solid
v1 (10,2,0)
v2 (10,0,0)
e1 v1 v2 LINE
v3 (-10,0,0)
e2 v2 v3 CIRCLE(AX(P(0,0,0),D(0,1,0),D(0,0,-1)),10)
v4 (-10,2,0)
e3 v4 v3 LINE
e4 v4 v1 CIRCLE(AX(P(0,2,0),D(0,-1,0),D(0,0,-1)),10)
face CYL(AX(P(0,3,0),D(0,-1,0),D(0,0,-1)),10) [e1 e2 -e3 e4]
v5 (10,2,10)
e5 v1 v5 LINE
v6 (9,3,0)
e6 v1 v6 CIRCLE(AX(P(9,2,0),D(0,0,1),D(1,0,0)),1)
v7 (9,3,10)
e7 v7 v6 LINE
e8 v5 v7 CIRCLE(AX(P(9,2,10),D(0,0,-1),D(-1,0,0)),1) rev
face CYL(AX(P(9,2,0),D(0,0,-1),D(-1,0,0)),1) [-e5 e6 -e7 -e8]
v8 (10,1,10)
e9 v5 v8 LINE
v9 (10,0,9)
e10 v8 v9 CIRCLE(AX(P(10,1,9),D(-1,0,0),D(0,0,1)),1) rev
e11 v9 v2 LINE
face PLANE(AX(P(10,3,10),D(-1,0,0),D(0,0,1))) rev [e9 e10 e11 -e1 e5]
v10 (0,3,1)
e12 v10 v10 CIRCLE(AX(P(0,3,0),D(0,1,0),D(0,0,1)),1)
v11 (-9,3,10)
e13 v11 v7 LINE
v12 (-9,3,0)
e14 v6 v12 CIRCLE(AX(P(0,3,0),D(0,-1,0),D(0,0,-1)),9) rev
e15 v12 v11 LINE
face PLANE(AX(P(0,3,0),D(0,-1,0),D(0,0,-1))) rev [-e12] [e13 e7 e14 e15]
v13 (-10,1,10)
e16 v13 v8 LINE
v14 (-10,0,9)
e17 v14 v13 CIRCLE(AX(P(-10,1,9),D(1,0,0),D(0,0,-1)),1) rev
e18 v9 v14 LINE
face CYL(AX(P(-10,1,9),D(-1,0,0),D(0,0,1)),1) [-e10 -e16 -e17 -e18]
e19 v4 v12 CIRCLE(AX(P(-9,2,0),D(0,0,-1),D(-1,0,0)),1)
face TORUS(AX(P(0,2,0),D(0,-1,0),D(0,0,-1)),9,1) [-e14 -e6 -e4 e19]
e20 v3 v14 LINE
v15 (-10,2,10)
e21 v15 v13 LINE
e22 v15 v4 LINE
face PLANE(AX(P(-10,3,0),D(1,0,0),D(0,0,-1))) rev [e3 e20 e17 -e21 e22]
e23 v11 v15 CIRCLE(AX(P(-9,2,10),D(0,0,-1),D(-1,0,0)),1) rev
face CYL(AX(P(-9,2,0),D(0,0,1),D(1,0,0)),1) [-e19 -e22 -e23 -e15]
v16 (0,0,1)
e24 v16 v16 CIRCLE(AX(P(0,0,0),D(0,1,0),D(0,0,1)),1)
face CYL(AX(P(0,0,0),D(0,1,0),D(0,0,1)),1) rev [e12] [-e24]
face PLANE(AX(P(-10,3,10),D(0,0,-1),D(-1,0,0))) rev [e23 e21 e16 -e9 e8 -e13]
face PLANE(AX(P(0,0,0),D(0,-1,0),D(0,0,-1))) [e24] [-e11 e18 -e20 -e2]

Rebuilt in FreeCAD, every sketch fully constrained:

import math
import FreeCAD as App
import Part
import Sketcher
from FreeCAD import Vector


def edges_at(feature, points):
    """Names of the edges that pass closest to the given points."""
    edges = feature.Shape.Edges
    near = lambda p: min(range(len(edges)), key=lambda i: edges[i].distToShape(Part.Vertex(*p))[0])
    return sorted({f"Edge{near(p) + 1}" for p in points})

doc = App.newDocument("Part")
body = doc.addObject("PartDesign::Body", "Body")

# Sketch on XZ plane
sketch1 = body.newObject("Sketcher::SketchObject", "Sketch")
sketch1.AttachmentSupport = (doc.getObject("XZ_Plane"), [""])
sketch1.MapMode = "FlatFace"
sketch1.addGeometry(Part.LineSegment(Vector(-10, 0, 0), Vector(-10, 10, 0)), False)
sketch1.addGeometry(Part.LineSegment(Vector(-10, 10, 0), Vector(10, 10, 0)), False)
sketch1.addGeometry(Part.LineSegment(Vector(10, 10, 0), Vector(10, 0, 0)), False)
sketch1.addGeometry(Part.ArcOfCircle(Part.Circle(Vector(0, 0, 0), Vector(0, 0, 1), 10), math.radians(180), math.radians(360)), False)
sketch1.addConstraint(Sketcher.Constraint("Coincident", 0, 2, 1, 1))
sketch1.addConstraint(Sketcher.Constraint("Coincident", 1, 2, 2, 1))
sketch1.addConstraint(Sketcher.Constraint("Tangent", 2, 2, 3, 2))
sketch1.addConstraint(Sketcher.Constraint("Tangent", 3, 1, 0, 1))
sketch1.addConstraint(Sketcher.Constraint("Vertical", 0))
sketch1.addConstraint(Sketcher.Constraint("Horizontal", 1))
sketch1.addConstraint(Sketcher.Constraint("Vertical", 2))
sketch1.addConstraint(Sketcher.Constraint("Coincident", 3, 3, -1, 1))
sketch1.addConstraint(Sketcher.Constraint("Radius", 3, 10.0))
sketch1.addConstraint(Sketcher.Constraint("DistanceY", 0, 1, 0, 2, 10.0))
pad1 = body.newObject("PartDesign::Pad", "Pad")
pad1.Profile = sketch1
pad1.Length = 3
pad1.Reversed = True

# Sketch on XZ plane
sketch2 = body.newObject("Sketcher::SketchObject", "Sketch001")
sketch2.AttachmentSupport = (doc.getObject("XZ_Plane"), [""])
sketch2.MapMode = "FlatFace"
sketch2.AttachmentOffset = App.Placement(Vector(0, 0, -3), App.Rotation())
sketch2.addGeometry(Part.Circle(Vector(0, 0, 0), Vector(0, 0, 1), 1), False)
sketch2.addConstraint(Sketcher.Constraint("Coincident", 0, 3, -1, 1))
sketch2.addConstraint(Sketcher.Constraint("Diameter", 0, 2.0))
pocket1 = body.newObject("PartDesign::Pocket", "Pocket")
pocket1.Profile = sketch2
pocket1.Type = "ThroughAll"
pocket1.Reversed = True
doc.recompute()

fillet = body.newObject("PartDesign::Fillet", "Fillet")
fillet.Base = (pocket1, edges_at(pocket1, [
    (10, 3, 5),
    (0, 3, -10),
    (0, 0, 10),
    (-10, 3, 5),
]))
fillet.Radius = 1

doc.recompute()
